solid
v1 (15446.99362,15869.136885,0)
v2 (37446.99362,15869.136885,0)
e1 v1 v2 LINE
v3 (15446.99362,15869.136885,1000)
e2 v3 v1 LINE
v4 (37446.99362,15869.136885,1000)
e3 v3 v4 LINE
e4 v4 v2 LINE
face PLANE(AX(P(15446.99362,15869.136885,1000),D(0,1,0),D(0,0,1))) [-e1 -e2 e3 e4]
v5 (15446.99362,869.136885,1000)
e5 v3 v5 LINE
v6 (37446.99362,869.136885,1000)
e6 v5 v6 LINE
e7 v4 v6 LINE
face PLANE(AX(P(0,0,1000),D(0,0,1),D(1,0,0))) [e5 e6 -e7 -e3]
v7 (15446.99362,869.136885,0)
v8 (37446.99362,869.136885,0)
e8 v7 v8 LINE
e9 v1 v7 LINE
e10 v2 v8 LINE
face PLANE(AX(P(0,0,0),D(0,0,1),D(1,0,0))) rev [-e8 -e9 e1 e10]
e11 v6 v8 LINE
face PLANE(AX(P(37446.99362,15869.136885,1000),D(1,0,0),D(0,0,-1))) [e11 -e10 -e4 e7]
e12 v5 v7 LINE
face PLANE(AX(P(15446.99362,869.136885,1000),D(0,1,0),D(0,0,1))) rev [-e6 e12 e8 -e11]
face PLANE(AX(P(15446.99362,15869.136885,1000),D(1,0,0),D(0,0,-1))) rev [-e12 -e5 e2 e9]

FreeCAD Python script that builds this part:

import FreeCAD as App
import Part
import Sketcher


def add_polygon(sketch, points):
    """Adds a closed chain of lines whose ends are joined by coincident constraints."""
    first, n = sketch.GeometryCount, len(points)
    for a, b in zip(points, points[1:] + points[:1]):
        sketch.addGeometry(Part.LineSegment(App.Vector(*a, 0), App.Vector(*b, 0)), False)
    for i in range(n):
        sketch.addConstraint(Sketcher.Constraint("Coincident", first + i, 2, first + (i + 1) % n, 1))

doc = App.newDocument("Part")
body = doc.addObject("PartDesign::Body", "Body")

# Sketch on XY plane
sketch1 = body.newObject("Sketcher::SketchObject", "Sketch")
sketch1.AttachmentSupport = (doc.getObject("XY_Plane"), [""])
sketch1.MapMode = "FlatFace"
add_polygon(sketch1, [(15447, 15869), (15447, 869), (37447, 869), (37447, 15869)])  # lines 0-3
sketch1.addConstraint([
    Sketcher.Constraint("Vertical", 0),
    Sketcher.Constraint("Horizontal", 1),
    Sketcher.Constraint("Vertical", 2),
    Sketcher.Constraint("Horizontal", 3),
    Sketcher.Constraint("DistanceX", 1, 1, 1, 2, 22000.0),
    Sketcher.Constraint("DistanceY", 0, 2, 0, 1, 15000.0),
    Sketcher.Constraint("DistanceX", -1, 1, 0, 2, 15446.99362),
    Sketcher.Constraint("DistanceY", -1, 1, 0, 2, 869.136885),
])
pad1 = body.newObject("PartDesign::Pad", "Pad")
pad1.Profile = sketch1
pad1.Length = 1000

doc.recompute()
